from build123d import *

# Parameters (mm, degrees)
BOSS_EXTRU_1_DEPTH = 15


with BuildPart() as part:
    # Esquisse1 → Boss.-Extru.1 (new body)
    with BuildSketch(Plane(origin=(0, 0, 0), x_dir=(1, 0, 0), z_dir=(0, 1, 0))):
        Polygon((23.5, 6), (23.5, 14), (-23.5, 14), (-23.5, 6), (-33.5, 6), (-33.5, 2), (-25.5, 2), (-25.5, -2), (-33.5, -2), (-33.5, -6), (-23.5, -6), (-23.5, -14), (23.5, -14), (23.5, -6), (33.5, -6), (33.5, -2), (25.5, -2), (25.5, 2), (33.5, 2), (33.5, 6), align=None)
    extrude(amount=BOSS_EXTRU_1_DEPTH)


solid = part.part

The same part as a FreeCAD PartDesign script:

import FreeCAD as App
import Part
import Sketcher

V = App.Vector
Q = App.Units.Quantity

doc = App.newDocument("Part")
params = doc.addObject("Spreadsheet::Sheet", "Params")
for row, (alias, value) in enumerate([
    ("sketch1_width", "47 mm"),
    ("sketch1_width2", "10 mm"),
    ("sketch1_width3", "8 mm"),
    ("sketch1_height", "4 mm"),
    ("pad1_length", "15 mm"),
], start=1):
    params.set(f"A{row}", alias)
    params.set(f"B{row}", "=" + value)
    params.setAlias(f"B{row}", alias)

body = doc.addObject("PartDesign::Body", "Body")

# Sketch on XZ plane
sketch1 = body.newObject("Sketcher::SketchObject", "Sketch")
sketch1.AttachmentSupport = (doc.getObject("XZ_Plane"), [""])
sketch1.MapMode = "FlatFace"
sketch1.addGeometry([
    Part.LineSegment(V(23.5, -6, 0), V(23.5, -14, 0)),  # 0
    Part.LineSegment(V(23.5, -14, 0), V(-23.5, -14, 0)),  # 1
    Part.LineSegment(V(-23.5, -14, 0), V(-23.5, -6, 0)),  # 2
    Part.LineSegment(V(-23.5, -6, 0), V(-33.5, -6, 0)),  # 3
    Part.LineSegment(V(-33.5, -6, 0), V(-33.5, -2, 0)),  # 4
    Part.LineSegment(V(-33.5, -2, 0), V(-25.5, -2, 0)),  # 5
    Part.LineSegment(V(-25.5, -2, 0), V(-25.5, 2, 0)),  # 6
    Part.LineSegment(V(-25.5, 2, 0), V(-33.5, 2, 0)),  # 7
    Part.LineSegment(V(-33.5, 2, 0), V(-33.5, 6, 0)),  # 8
    Part.LineSegment(V(-33.5, 6, 0), V(-23.5, 6, 0)),  # 9
    Part.LineSegment(V(-23.5, 6, 0), V(-23.5, 14, 0)),  # 10
    Part.LineSegment(V(-23.5, 14, 0), V(23.5, 14, 0)),  # 11
    Part.LineSegment(V(23.5, 14, 0), V(23.5, 6, 0)),  # 12
    Part.LineSegment(V(23.5, 6, 0), V(33.5, 6, 0)),  # 13
    Part.LineSegment(V(33.5, 6, 0), V(33.5, 2, 0)),  # 14
    Part.LineSegment(V(33.5, 2, 0), V(25.5, 2, 0)),  # 15
    Part.LineSegment(V(25.5, 2, 0), V(25.5, -2, 0)),  # 16
    Part.LineSegment(V(25.5, -2, 0), V(33.5, -2, 0)),  # 17
    Part.LineSegment(V(33.5, -2, 0), V(33.5, -6, 0)),  # 18
    Part.LineSegment(V(33.5, -6, 0), V(23.5, -6, 0)),  # 19
], False)
sketch1.addConstraint([
    Sketcher.Constraint("Coincident", 0, 2, 1, 1),
    Sketcher.Constraint("Coincident", 1, 2, 2, 1),
    Sketcher.Constraint("Coincident", 2, 2, 3, 1),
    Sketcher.Constraint("Coincident", 3, 2, 4, 1),
    Sketcher.Constraint("Coincident", 4, 2, 5, 1),
    Sketcher.Constraint("Coincident", 5, 2, 6, 1),
    Sketcher.Constraint("Coincident", 6, 2, 7, 1),
    Sketcher.Constraint("Coincident", 7, 2, 8, 1),
    Sketcher.Constraint("Coincident", 8, 2, 9, 1),
    Sketcher.Constraint("Coincident", 9, 2, 10, 1),
    Sketcher.Constraint("Coincident", 10, 2, 11, 1),
    Sketcher.Constraint("Coincident", 11, 2, 12, 1),
    Sketcher.Constraint("Coincident", 12, 2, 13, 1),
    Sketcher.Constraint("Coincident", 13, 2, 14, 1),
    Sketcher.Constraint("Coincident", 14, 2, 15, 1),
    Sketcher.Constraint("Coincident", 15, 2, 16, 1),
    Sketcher.Constraint("Coincident", 16, 2, 17, 1),
    Sketcher.Constraint("Coincident", 17, 2, 18, 1),
    Sketcher.Constraint("Coincident", 18, 2, 19, 1),
    Sketcher.Constraint("Coincident", 19, 2, 0, 1),
    Sketcher.Constraint("Vertical", 0),
    Sketcher.Constraint("Horizontal", 1),
    Sketcher.Constraint("Vertical", 2),
    Sketcher.Constraint("Horizontal", 3),
    Sketcher.Constraint("Vertical", 4),
    Sketcher.Constraint("Horizontal", 5),
    Sketcher.Constraint("Vertical", 6),
    Sketcher.Constraint("Horizontal", 7),
    Sketcher.Constraint("Vertical", 8),
    Sketcher.Constraint("Horizontal", 9),
    Sketcher.Constraint("Vertical", 10),
    Sketcher.Constraint("Horizontal", 11),
    Sketcher.Constraint("Vertical", 12),
    Sketcher.Constraint("Horizontal", 13),
    Sketcher.Constraint("Vertical", 14),
    Sketcher.Constraint("Horizontal", 15),
    Sketcher.Constraint("Vertical", 16),
    Sketcher.Constraint("Horizontal", 17),
    Sketcher.Constraint("Vertical", 18),
    Sketcher.Constraint("Horizontal", 19),
    Sketcher.Constraint("Symmetric", 0, 2, 10, 2, -1, 1),
    Sketcher.Constraint("Symmetric", 2, 2, 12, 2, -1, 1),
    Sketcher.Constraint("Symmetric", 4, 2, 14, 2, -1, 1),
    Sketcher.Constraint("Symmetric", 6, 2, 16, 2, -1, 1),
    Sketcher.Constraint("Symmetric", 8, 2, 18, 2, -1, 1),
    Sketcher.Constraint("Symmetric", 9, 2, 12, 2, -2),
    Sketcher.Constraint("Symmetric", 7, 2, 14, 2, -2),
    Sketcher.Constraint("Equal", 17, 0),
    Sketcher.Constraint("Equal", 4, 6),
    Sketcher.Constraint("DistanceX", 1, 2, 1, 1, Q("47 mm")),
    Sketcher.Constraint("DistanceX", 3, 2, 3, 1, Q("10 mm")),
    Sketcher.Constraint("DistanceX", 5, 1, 5, 2, Q("8 mm")),
    Sketcher.Constraint("DistanceY", 4, 1, 4, 2, Q("4 mm")),
])
sketch1.setExpression("Constraints[49]", "Params.sketch1_width")
sketch1.setExpression("Constraints[50]", "Params.sketch1_width2")
sketch1.setExpression("Constraints[51]", "Params.sketch1_width3")
sketch1.setExpression("Constraints[52]", "Params.sketch1_height")
pad1 = body.newObject("PartDesign::Pad", "Pad")
pad1.Profile = sketch1
pad1.setExpression("Length", "Params.pad1_length")
pad1.Reversed = True

doc.recompute()
